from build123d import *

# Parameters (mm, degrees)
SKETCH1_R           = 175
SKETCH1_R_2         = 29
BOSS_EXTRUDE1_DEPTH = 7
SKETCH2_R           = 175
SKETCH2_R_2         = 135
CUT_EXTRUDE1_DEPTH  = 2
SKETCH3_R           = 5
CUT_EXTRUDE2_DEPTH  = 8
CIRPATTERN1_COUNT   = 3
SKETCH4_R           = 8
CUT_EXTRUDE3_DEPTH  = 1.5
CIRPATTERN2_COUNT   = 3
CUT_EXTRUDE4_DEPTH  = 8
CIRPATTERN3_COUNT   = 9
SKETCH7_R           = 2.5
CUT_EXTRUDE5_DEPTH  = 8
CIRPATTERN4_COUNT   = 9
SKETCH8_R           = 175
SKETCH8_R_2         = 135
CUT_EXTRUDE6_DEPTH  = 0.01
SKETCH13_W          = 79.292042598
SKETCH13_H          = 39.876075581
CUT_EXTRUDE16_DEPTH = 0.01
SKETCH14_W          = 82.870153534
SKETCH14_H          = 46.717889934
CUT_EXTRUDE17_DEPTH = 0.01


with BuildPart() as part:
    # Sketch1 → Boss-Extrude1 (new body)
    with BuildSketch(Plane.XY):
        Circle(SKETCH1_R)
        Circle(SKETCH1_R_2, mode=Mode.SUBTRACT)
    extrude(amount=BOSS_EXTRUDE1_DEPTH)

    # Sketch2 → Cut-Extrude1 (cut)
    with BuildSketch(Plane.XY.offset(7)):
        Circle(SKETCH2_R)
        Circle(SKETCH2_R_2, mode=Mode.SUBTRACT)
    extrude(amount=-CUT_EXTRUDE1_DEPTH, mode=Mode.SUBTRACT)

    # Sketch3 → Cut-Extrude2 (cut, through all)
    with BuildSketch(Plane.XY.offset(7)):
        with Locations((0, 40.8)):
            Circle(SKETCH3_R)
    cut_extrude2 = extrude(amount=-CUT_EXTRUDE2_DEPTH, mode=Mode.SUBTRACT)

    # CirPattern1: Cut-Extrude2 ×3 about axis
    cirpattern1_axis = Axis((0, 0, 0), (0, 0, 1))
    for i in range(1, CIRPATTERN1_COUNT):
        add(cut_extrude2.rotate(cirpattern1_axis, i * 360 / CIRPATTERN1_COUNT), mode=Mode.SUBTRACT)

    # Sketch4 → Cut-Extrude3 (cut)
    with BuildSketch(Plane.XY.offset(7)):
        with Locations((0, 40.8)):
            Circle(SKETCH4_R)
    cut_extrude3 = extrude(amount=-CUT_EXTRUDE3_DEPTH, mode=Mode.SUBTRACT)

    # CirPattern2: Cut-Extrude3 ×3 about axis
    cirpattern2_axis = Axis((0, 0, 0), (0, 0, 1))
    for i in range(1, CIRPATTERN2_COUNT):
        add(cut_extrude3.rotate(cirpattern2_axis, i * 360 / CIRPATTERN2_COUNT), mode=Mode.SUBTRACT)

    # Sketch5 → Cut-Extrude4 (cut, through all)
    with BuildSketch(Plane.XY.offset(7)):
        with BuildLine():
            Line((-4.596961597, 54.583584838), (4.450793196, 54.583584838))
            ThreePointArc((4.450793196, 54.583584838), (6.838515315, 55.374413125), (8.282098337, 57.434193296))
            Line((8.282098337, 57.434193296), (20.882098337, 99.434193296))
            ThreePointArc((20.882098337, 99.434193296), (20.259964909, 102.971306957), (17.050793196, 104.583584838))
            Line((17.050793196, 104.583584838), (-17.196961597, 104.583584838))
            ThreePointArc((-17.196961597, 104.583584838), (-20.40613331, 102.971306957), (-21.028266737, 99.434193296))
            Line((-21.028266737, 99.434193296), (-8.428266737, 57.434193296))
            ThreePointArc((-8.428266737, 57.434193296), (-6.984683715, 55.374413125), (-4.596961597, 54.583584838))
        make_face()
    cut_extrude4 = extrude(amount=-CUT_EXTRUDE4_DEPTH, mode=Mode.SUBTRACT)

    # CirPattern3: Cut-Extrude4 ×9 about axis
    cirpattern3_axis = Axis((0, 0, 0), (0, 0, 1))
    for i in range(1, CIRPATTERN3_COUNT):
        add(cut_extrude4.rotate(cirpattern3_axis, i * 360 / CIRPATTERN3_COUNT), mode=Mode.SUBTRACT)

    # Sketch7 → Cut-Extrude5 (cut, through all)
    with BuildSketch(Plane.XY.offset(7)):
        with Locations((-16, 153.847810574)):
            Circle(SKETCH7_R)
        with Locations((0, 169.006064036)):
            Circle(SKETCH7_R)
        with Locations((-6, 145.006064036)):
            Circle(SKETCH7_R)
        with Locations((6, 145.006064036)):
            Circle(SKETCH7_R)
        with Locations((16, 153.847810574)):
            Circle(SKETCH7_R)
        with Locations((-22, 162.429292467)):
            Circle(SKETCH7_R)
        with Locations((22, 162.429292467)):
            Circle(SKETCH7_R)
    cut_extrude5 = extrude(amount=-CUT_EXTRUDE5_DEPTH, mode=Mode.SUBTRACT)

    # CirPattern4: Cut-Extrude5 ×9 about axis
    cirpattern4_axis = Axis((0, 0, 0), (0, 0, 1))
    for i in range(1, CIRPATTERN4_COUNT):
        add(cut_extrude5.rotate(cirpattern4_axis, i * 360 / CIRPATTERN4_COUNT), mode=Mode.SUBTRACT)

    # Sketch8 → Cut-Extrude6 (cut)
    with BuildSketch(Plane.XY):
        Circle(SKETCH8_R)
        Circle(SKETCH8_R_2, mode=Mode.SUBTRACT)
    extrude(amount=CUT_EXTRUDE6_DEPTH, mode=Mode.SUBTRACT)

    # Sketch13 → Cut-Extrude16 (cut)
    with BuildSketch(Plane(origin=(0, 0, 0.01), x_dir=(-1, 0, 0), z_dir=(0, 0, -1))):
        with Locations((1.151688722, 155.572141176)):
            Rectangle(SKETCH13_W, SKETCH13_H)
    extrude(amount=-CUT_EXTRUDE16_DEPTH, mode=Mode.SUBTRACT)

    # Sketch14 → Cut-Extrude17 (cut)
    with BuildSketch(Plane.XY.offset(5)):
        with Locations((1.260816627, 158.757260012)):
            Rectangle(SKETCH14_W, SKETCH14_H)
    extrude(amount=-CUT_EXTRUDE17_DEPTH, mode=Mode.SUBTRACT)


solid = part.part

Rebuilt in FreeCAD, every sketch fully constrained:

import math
import FreeCAD as App
import Part
import Sketcher
from FreeCAD import Vector


def add_polygon(sketch, points):
    """Adds a closed chain of lines whose ends are joined by coincident constraints."""
    first, n = sketch.GeometryCount, len(points)
    for a, b in zip(points, points[1:] + points[:1]):
        sketch.addGeometry(Part.LineSegment(App.Vector(*a, 0), App.Vector(*b, 0)), False)
    for i in range(n):
        sketch.addConstraint(Sketcher.Constraint("Coincident", first + i, 2, first + (i + 1) % n, 1))

doc = App.newDocument("Part")
body = doc.addObject("PartDesign::Body", "Body")

sketch1 = body.newObject("Sketcher::SketchObject", "Sketch")
sketch1.AttachmentSupport = (doc.getObject("XY_Plane"), [""])
sketch1.MapMode = "FlatFace"
sketch1.addGeometry(Part.Circle(Vector(0, 0, 0), Vector(0, 0, 1), 175), False)
sketch1.addGeometry(Part.Circle(Vector(0, 0, 0), Vector(0, 0, 1), 29), False)
sketch1.addConstraint(Sketcher.Constraint("Coincident", 0, 3, -1, 1))
sketch1.addConstraint(Sketcher.Constraint("Coincident", 1, 3, -1, 1))
sketch1.addConstraint(Sketcher.Constraint("Diameter", 0, 350.0))
sketch1.addConstraint(Sketcher.Constraint("Diameter", 1, 58.0))
pad1 = body.newObject("PartDesign::Pad", "Pad")
pad1.Profile = sketch1
pad1.Length = 7

sketch2 = body.newObject("Sketcher::SketchObject", "Sketch001")
sketch2.AttachmentSupport = (doc.getObject("XY_Plane"), [""])
sketch2.MapMode = "FlatFace"
sketch2.AttachmentOffset = App.Placement(Vector(0, 0, 7), App.Rotation())
sketch2.addGeometry(Part.Circle(Vector(0, 0, 0), Vector(0, 0, 1), 175), False)
sketch2.addGeometry(Part.Circle(Vector(0, 0, 0), Vector(0, 0, 1), 135), False)
sketch2.addConstraint(Sketcher.Constraint("Coincident", 0, 3, -1, 1))
sketch2.addConstraint(Sketcher.Constraint("Coincident", 1, 3, -1, 1))
sketch2.addConstraint(Sketcher.Constraint("Diameter", 0, 350.0))
sketch2.addConstraint(Sketcher.Constraint("Diameter", 1, 270.0))
pocket1 = body.newObject("PartDesign::Pocket", "Pocket")
pocket1.Profile = sketch2
pocket1.Length = 2

sketch3 = body.newObject("Sketcher::SketchObject", "Sketch002")
sketch3.AttachmentSupport = (doc.getObject("XY_Plane"), [""])
sketch3.MapMode = "FlatFace"
sketch3.AttachmentOffset = App.Placement(Vector(0, 0, 7), App.Rotation())
sketch3.addGeometry(Part.Circle(Vector(0, 41, 0), Vector(0, 0, 1), 5), False)
sketch3.addConstraint(Sketcher.Constraint("PointOnObject", 0, 3, -2))
sketch3.addConstraint(Sketcher.Constraint("Diameter", 0, 10.0))
sketch3.addConstraint(Sketcher.Constraint("DistanceY", -1, 1, 0, 3, 40.8))
pocket2 = body.newObject("PartDesign::Pocket", "Pocket001")
pocket2.Profile = sketch3
pocket2.Type = "ThroughAll"
doc.recompute()

polarpattern = body.newObject("PartDesign::PolarPattern", "PolarPattern")
polarpattern.Originals = [pocket2]
polarpattern.Axis = (doc.getObject("Z_Axis"), [""])
polarpattern.Angle = 360
polarpattern.Occurrences = 3
body.Tip = polarpattern

sketch4 = body.newObject("Sketcher::SketchObject", "Sketch003")
sketch4.AttachmentSupport = (doc.getObject("XY_Plane"), [""])
sketch4.MapMode = "FlatFace"
sketch4.AttachmentOffset = App.Placement(Vector(0, 0, 7), App.Rotation())
sketch4.addGeometry(Part.Circle(Vector(0, 41, 0), Vector(0, 0, 1), 8), False)
sketch4.addConstraint(Sketcher.Constraint("PointOnObject", 0, 3, -2))
sketch4.addConstraint(Sketcher.Constraint("Diameter", 0, 16.0))
sketch4.addConstraint(Sketcher.Constraint("DistanceY", -1, 1, 0, 3, 40.8))
pocket3 = body.newObject("PartDesign::Pocket", "Pocket002")
pocket3.Profile = sketch4
pocket3.Length = 1.5
doc.recompute()

polarpattern2 = body.newObject("PartDesign::PolarPattern", "PolarPattern001")
polarpattern2.Originals = [pocket3]
polarpattern2.Axis = (doc.getObject("Z_Axis"), [""])
polarpattern2.Angle = 360
polarpattern2.Occurrences = 3
body.Tip = polarpattern2

sketch5 = body.newObject("Sketcher::SketchObject", "Sketch004")
sketch5.AttachmentSupport = (doc.getObject("XY_Plane"), [""])
sketch5.MapMode = "FlatFace"
sketch5.AttachmentOffset = App.Placement(Vector(0, 0, 7), App.Rotation())
sketch5.addGeometry(Part.LineSegment(Vector(-4.6, 54.6, 0), Vector(4.5, 54.6, 0)), False)
sketch5.addGeometry(Part.ArcOfCircle(Part.Circle(Vector(4.5, 58.6, 0), Vector(0, 0, 1), 4), math.radians(-90), math.radians(-17)), False)
sketch5.addGeometry(Part.LineSegment(Vector(8.3, 57.4, 0), Vector(20.9, 99.4, 0)), False)
sketch5.addGeometry(Part.ArcOfCircle(Part.Circle(Vector(17.1, 100.6, 0), Vector(0, 0, 1), 4), math.radians(-17), math.radians(90)), False)
sketch5.addGeometry(Part.LineSegment(Vector(17.1, 104.6, 0), Vector(-17.2, 104.6, 0)), False)
sketch5.addGeometry(Part.ArcOfCircle(Part.Circle(Vector(-17.2, 100.6, 0), Vector(0, 0, 1), 4), math.radians(90), math.radians(197)), False)
sketch5.addGeometry(Part.LineSegment(Vector(-21, 99.4, 0), Vector(-8.4, 57.4, 0)), False)
sketch5.addGeometry(Part.ArcOfCircle(Part.Circle(Vector(-4.6, 58.6, 0), Vector(0, 0, 1), 4), math.radians(-163), math.radians(-90)), False)
sketch5.addConstraint(Sketcher.Constraint("Tangent", 0, 2, 1, 1))
sketch5.addConstraint(Sketcher.Constraint("Tangent", 1, 2, 2, 1))
sketch5.addConstraint(Sketcher.Constraint("Tangent", 2, 2, 3, 1))
sketch5.addConstraint(Sketcher.Constraint("Tangent", 3, 2, 4, 1))
sketch5.addConstraint(Sketcher.Constraint("Tangent", 4, 2, 5, 1))
sketch5.addConstraint(Sketcher.Constraint("Tangent", 5, 2, 6, 1))
sketch5.addConstraint(Sketcher.Constraint("Tangent", 6, 2, 7, 1))
sketch5.addConstraint(Sketcher.Constraint("Tangent", 7, 2, 0, 1))
sketch5.addConstraint(Sketcher.Constraint("Horizontal", 0))
sketch5.addConstraint(Sketcher.Constraint("Horizontal", 4))
sketch5.addConstraint(Sketcher.Constraint("Equal", 1, 3))
sketch5.addConstraint(Sketcher.Constraint("Equal", 3, 5))
sketch5.addConstraint(Sketcher.Constraint("Equal", 5, 7))
sketch5.addConstraint(Sketcher.Constraint("Horizontal", 2, 2, 5, 2))
sketch5.addConstraint(Sketcher.Constraint("Radius", 1, 4.0))
sketch5.addConstraint(Sketcher.Constraint("DistanceY", 1, 3, 3, 3, 42.0))
sketch5.addConstraint(Sketcher.Constraint("DistanceX", 1, 3, 3, 3, 12.6))
sketch5.addConstraint(Sketcher.Constraint("DistanceX", -1, 1, 1, 2, 8.282098))
sketch5.addConstraint(Sketcher.Constraint("DistanceX", 0, 1, 0, 2, 9.047755))
sketch5.addConstraint(Sketcher.Constraint("DistanceY", -1, 1, 1, 3, 58.583585))
pocket4 = body.newObject("PartDesign::Pocket", "Pocket003")
pocket4.Profile = sketch5
pocket4.Type = "ThroughAll"
doc.recompute()

polarpattern3 = body.newObject("PartDesign::PolarPattern", "PolarPattern002")
polarpattern3.Originals = [pocket4]
polarpattern3.Axis = (doc.getObject("Z_Axis"), [""])
polarpattern3.Angle = 360
polarpattern3.Occurrences = 9
body.Tip = polarpattern3

sketch6 = body.newObject("Sketcher::SketchObject", "Sketch005")
sketch6.AttachmentSupport = (doc.getObject("XY_Plane"), [""])
sketch6.MapMode = "FlatFace"
sketch6.AttachmentOffset = App.Placement(Vector(0, 0, 7), App.Rotation())
sketch6.addGeometry(Part.Circle(Vector(-16, 153.8, 0), Vector(0, 0, 1), 2.5), False)
sketch6.addGeometry(Part.Circle(Vector(0, 169, 0), Vector(0, 0, 1), 2.5), False)
sketch6.addGeometry(Part.Circle(Vector(-6, 145, 0), Vector(0, 0, 1), 2.5), False)
sketch6.addGeometry(Part.Circle(Vector(6, 145, 0), Vector(0, 0, 1), 2.5), False)
sketch6.addGeometry(Part.Circle(Vector(16, 153.8, 0), Vector(0, 0, 1), 2.5), False)
sketch6.addGeometry(Part.Circle(Vector(-22, 162.4, 0), Vector(0, 0, 1), 2.5), False)
sketch6.addGeometry(Part.Circle(Vector(22, 162.4, 0), Vector(0, 0, 1), 2.5), False)
sketch6.addConstraint(Sketcher.Constraint("Equal", 0, 1))
sketch6.addConstraint(Sketcher.Constraint("Equal", 1, 2))
sketch6.addConstraint(Sketcher.Constraint("Equal", 2, 3))
sketch6.addConstraint(Sketcher.Constraint("Equal", 3, 4))
sketch6.addConstraint(Sketcher.Constraint("Equal", 4, 5))
sketch6.addConstraint(Sketcher.Constraint("Equal", 5, 6))
sketch6.addConstraint(Sketcher.Constraint("Symmetric", 2, 3, 3, 3, -2))
sketch6.addConstraint(Sketcher.Constraint("Symmetric", 0, 3, 4, 3, -2))
sketch6.addConstraint(Sketcher.Constraint("Symmetric", 5, 3, 6, 3, -2))
sketch6.addConstraint(Sketcher.Constraint("PointOnObject", 1, 3, -2))
sketch6.addConstraint(Sketcher.Constraint("Diameter", 0, 5.0))
sketch6.addConstraint(Sketcher.Constraint("DistanceX", 0, 3, -1, 1, 16.0))
sketch6.addConstraint(Sketcher.Constraint("DistanceX", 2, 3, -1, 1, 6.0))
sketch6.addConstraint(Sketcher.Constraint("DistanceX", 5, 3, -1, 1, 22.0))
sketch6.addConstraint(Sketcher.Constraint("DistanceY", 2, 3, 1, 3, 24.0))
sketch6.addConstraint(Sketcher.Constraint("DistanceY", -1, 1, 0, 3, 153.847811))
sketch6.addConstraint(Sketcher.Constraint("DistanceY", 0, 3, 5, 3, 8.581482))
sketch6.addConstraint(Sketcher.Constraint("DistanceY", 5, 3, 1, 3, 6.576772))
pocket5 = body.newObject("PartDesign::Pocket", "Pocket004")
pocket5.Profile = sketch6
pocket5.Type = "ThroughAll"
doc.recompute()

polarpattern4 = body.newObject("PartDesign::PolarPattern", "PolarPattern003")
polarpattern4.Originals = [pocket5]
polarpattern4.Axis = (doc.getObject("Z_Axis"), [""])
polarpattern4.Angle = 360
polarpattern4.Occurrences = 9
body.Tip = polarpattern4

sketch7 = body.newObject("Sketcher::SketchObject", "Sketch006")
sketch7.AttachmentSupport = (doc.getObject("XY_Plane"), [""])
sketch7.MapMode = "FlatFace"
sketch7.addGeometry(Part.Circle(Vector(0, 0, 0), Vector(0, 0, 1), 175), False)
sketch7.addGeometry(Part.Circle(Vector(0, 0, 0), Vector(0, 0, 1), 135), False)
sketch7.addConstraint(Sketcher.Constraint("Coincident", 0, 3, -1, 1))
sketch7.addConstraint(Sketcher.Constraint("Coincident", 1, 3, -1, 1))
sketch7.addConstraint(Sketcher.Constraint("Diameter", 0, 350.0))
sketch7.addConstraint(Sketcher.Constraint("Diameter", 1, 270.0))
pocket6 = body.newObject("PartDesign::Pocket", "Pocket005")
pocket6.Profile = sketch7
pocket6.Length = 0.01
pocket6.Reversed = True

sketch8 = body.newObject("Sketcher::SketchObject", "Sketch007")
sketch8.AttachmentSupport = (doc.getObject("XY_Plane"), [""])
sketch8.MapMode = "FlatFace"
sketch8.AttachmentOffset = App.Placement(Vector(0, 0, 0.01), App.Rotation())
add_polygon(sketch8, [(38, 176), (38, 136), (-41, 136), (-41, 176)])
sketch8.addConstraint(Sketcher.Constraint("Vertical", 0))
sketch8.addConstraint(Sketcher.Constraint("Horizontal", 1))
sketch8.addConstraint(Sketcher.Constraint("Vertical", 2))
sketch8.addConstraint(Sketcher.Constraint("Horizontal", 3))
sketch8.addConstraint(Sketcher.Constraint("DistanceX", 1, 2, 1, 1, 79.292043))
sketch8.addConstraint(Sketcher.Constraint("DistanceY", 0, 2, 0, 1, 39.876076))
sketch8.addConstraint(Sketcher.Constraint("DistanceX", 1, 2, -1, 1, 40.79771))
sketch8.addConstraint(Sketcher.Constraint("DistanceY", -1, 1, 2, 2, 175.510179))
pocket7 = body.newObject("PartDesign::Pocket", "Pocket006")
pocket7.Profile = sketch8
pocket7.Length = 0.01
pocket7.Reversed = True

sketch9 = body.newObject("Sketcher::SketchObject", "Sketch008")
sketch9.AttachmentSupport = (doc.getObject("XY_Plane"), [""])
sketch9.MapMode = "FlatFace"
sketch9.AttachmentOffset = App.Placement(Vector(0, 0, 5), App.Rotation())
add_polygon(sketch9, [(-40, 182), (-40, 135), (43, 135), (43, 182)])
sketch9.addConstraint(Sketcher.Constraint("Vertical", 0))
sketch9.addConstraint(Sketcher.Constraint("Horizontal", 1))
sketch9.addConstraint(Sketcher.Constraint("Vertical", 2))
sketch9.addConstraint(Sketcher.Constraint("Horizontal", 3))
sketch9.addConstraint(Sketcher.Constraint("DistanceY", 0, 2, 0, 1, 46.71789))
sketch9.addConstraint(Sketcher.Constraint("DistanceX", 1, 1, 1, 2, 82.870154))
sketch9.addConstraint(Sketcher.Constraint("DistanceX", 0, 2, -1, 1, 40.17426))
sketch9.addConstraint(Sketcher.Constraint("DistanceY", -1, 1, 0, 2, 135.398315))
pocket8 = body.newObject("PartDesign::Pocket", "Pocket007")
pocket8.Profile = sketch9
pocket8.Length = 0.01

doc.recompute()
